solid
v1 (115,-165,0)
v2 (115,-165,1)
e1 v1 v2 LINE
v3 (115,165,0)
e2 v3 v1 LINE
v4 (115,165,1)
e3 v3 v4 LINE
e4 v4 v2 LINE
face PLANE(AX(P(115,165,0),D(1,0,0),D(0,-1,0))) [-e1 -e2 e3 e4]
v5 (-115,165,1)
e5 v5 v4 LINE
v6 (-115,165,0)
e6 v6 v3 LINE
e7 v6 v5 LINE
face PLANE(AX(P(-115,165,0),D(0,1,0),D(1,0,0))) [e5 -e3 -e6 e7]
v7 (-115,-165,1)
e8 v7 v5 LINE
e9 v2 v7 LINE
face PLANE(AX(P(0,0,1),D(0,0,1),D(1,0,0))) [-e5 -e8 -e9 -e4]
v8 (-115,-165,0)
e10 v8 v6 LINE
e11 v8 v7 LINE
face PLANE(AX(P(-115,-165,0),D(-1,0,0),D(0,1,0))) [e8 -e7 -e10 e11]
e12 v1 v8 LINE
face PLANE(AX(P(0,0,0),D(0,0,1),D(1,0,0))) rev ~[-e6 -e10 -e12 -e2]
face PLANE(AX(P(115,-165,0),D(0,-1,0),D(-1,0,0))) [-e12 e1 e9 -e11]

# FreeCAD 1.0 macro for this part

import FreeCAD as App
import Part
import Sketcher


def add_polygon(sketch, points):
    """Adds a closed chain of lines whose ends are joined by coincident constraints."""
    first, n = sketch.GeometryCount, len(points)
    for a, b in zip(points, points[1:] + points[:1]):
        sketch.addGeometry(Part.LineSegment(App.Vector(*a, 0), App.Vector(*b, 0)), False)
    for i in range(n):
        sketch.addConstraint(Sketcher.Constraint("Coincident", first + i, 2, first + (i + 1) % n, 1))

doc = App.newDocument("Part")
body = doc.addObject("PartDesign::Body", "Body")

sketch1 = body.newObject("Sketcher::SketchObject", "Sketch")
sketch1.AttachmentSupport = (doc.getObject("XY_Plane"), [""])
sketch1.MapMode = "FlatFace"
add_polygon(sketch1, [(115, 165), (-115, 165), (-115, -165), (115, -165)])
sketch1.addConstraint(Sketcher.Constraint("Horizontal", 0))
sketch1.addConstraint(Sketcher.Constraint("Vertical", 1))
sketch1.addConstraint(Sketcher.Constraint("Horizontal", 2))
sketch1.addConstraint(Sketcher.Constraint("Vertical", 3))
sketch1.addConstraint(Sketcher.Constraint("Symmetric", 0, 2, 2, 2, -1, 1))
sketch1.addConstraint(Sketcher.Constraint("DistanceX", 0, 2, 0, 1, 230.0))
sketch1.addConstraint(Sketcher.Constraint("DistanceY", 1, 2, 1, 1, 330.0))
pad1 = body.newObject("PartDesign::Pad", "Pad")
pad1.Profile = sketch1
pad1.Length = 1

doc.recompute()
